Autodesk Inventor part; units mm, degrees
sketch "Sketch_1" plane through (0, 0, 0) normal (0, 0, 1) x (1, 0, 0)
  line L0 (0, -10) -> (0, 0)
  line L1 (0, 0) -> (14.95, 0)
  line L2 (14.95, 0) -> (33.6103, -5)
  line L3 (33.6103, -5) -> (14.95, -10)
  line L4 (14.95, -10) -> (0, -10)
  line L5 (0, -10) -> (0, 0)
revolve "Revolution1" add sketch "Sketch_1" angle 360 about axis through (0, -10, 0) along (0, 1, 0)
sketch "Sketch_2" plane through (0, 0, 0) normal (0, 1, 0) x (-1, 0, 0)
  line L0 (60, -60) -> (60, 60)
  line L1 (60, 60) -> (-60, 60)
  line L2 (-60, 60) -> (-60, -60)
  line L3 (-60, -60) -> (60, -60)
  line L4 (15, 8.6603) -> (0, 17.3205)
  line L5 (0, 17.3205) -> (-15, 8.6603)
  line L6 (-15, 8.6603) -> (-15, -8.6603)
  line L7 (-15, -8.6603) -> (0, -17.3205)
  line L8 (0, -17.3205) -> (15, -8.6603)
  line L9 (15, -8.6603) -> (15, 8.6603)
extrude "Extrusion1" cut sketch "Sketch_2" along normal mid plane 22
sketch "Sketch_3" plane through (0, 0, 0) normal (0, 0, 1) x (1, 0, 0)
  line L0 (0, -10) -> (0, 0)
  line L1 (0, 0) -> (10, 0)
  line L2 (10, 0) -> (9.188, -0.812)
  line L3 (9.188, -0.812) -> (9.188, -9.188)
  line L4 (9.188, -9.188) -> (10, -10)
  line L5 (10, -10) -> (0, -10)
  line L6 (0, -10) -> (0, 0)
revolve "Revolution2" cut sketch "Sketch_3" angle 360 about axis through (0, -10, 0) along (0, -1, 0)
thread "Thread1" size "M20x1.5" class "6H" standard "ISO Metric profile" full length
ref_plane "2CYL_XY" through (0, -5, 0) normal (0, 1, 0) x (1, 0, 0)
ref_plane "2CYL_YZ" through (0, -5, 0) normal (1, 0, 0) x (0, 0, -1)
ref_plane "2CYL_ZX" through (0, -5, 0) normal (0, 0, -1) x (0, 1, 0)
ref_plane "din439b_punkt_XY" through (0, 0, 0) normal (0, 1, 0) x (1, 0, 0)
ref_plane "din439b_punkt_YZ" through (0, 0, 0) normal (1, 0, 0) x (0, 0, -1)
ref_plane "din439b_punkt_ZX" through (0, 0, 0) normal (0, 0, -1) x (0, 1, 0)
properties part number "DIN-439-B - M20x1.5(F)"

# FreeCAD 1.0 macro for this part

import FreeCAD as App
import Part
import Sketcher
from FreeCAD import Vector
Q = App.Units.Quantity

doc = App.newDocument("Part")
params = doc.addObject("Spreadsheet::Sheet", "Params")
for row, (alias, value) in enumerate([
    ("sketch1_height", "10 mm"),
    ("sketch1_width", "14.95 mm"),
    ("revolution_angle", "360 deg"),
    ("sketch2_width", "120 mm"),
    ("pocket1_length", "22 mm"),
    ("sketch3_width", "10 mm"),
    ("groove_angle", "360 deg"),
], start=1):
    params.set(f"A{row}", alias)
    params.set(f"B{row}", "=" + value)
    params.setAlias(f"B{row}", alias)

body = doc.addObject("PartDesign::Body", "Body")

# Sketch on XY plane
sketch1 = body.newObject("Sketcher::SketchObject", "Sketch")
sketch1.AttachmentSupport = (doc.getObject("XY_Plane"), [""])
sketch1.MapMode = "FlatFace"
sketch1.addGeometry(Part.LineSegment(Vector(0, 0, 0), Vector(0, -10, 0)), False)
sketch1.addGeometry(Part.LineSegment(Vector(0, -10, 0), Vector(15, -10, 0)), False)
sketch1.addGeometry(Part.LineSegment(Vector(15, -10, 0), Vector(34, -5, 0)), False)
sketch1.addGeometry(Part.LineSegment(Vector(34, -5, 0), Vector(15, 0, 0)), False)
sketch1.addGeometry(Part.LineSegment(Vector(15, 0, 0), Vector(0, 0, 0)), False)
sketch1.addConstraint(Sketcher.Constraint("Coincident", 0, 2, 1, 1))
sketch1.addConstraint(Sketcher.Constraint("Coincident", 1, 2, 2, 1))
sketch1.addConstraint(Sketcher.Constraint("Coincident", 2, 2, 3, 1))
sketch1.addConstraint(Sketcher.Constraint("Coincident", 3, 2, 4, 1))
sketch1.addConstraint(Sketcher.Constraint("Coincident", 4, 2, 0, 1))
sketch1.addConstraint(Sketcher.Constraint("Vertical", 0))
sketch1.addConstraint(Sketcher.Constraint("Horizontal", 1))
sketch1.addConstraint(Sketcher.Constraint("Horizontal", 4))
sketch1.addConstraint(Sketcher.Constraint("Coincident", 4, 2, -1, 1))
sketch1.addConstraint(Sketcher.Constraint("Vertical", 1, 2, 3, 2))
sketch1.addConstraint(Sketcher.Constraint("Equal", 2, 3))
sketch1.addConstraint(Sketcher.Constraint("DistanceY", 0, 2, 0, 1, Q("10 mm")))
sketch1.addConstraint(Sketcher.Constraint("Angle", 2, Q("15 deg")))
sketch1.addConstraint(Sketcher.Constraint("DistanceX", 1, 1, 1, 2, Q("14.95 mm")))
sketch1.setExpression("Constraints[11]", "Params.sketch1_height")
sketch1.setExpression("Constraints[13]", "Params.sketch1_width")
revolution = body.newObject("PartDesign::Revolution", "Revolution")
revolution.Profile = sketch1
revolution.ReferenceAxis = (sketch1, ["V_Axis"])
revolution.setExpression("Angle", "Params.revolution_angle")

# Sketch on XZ plane
sketch2 = body.newObject("Sketcher::SketchObject", "Sketch001")
sketch2.AttachmentSupport = (doc.getObject("XZ_Plane"), [""])
sketch2.MapMode = "FlatFace"
sketch2.addGeometry(Part.LineSegment(Vector(60, -60, 0), Vector(-60, -60, 0)), False)
sketch2.addGeometry(Part.LineSegment(Vector(-60, -60, 0), Vector(-60, 60, 0)), False)
sketch2.addGeometry(Part.LineSegment(Vector(-60, 60, 0), Vector(60, 60, 0)), False)
sketch2.addGeometry(Part.LineSegment(Vector(60, 60, 0), Vector(60, -60, 0)), False)
sketch2.addGeometry(Part.LineSegment(Vector(0, 17, 0), Vector(-15, 9, 0)), False)
sketch2.addGeometry(Part.LineSegment(Vector(-15, 9, 0), Vector(-15, -9, 0)), False)
sketch2.addGeometry(Part.LineSegment(Vector(-15, -9, 0), Vector(0, -17, 0)), False)
sketch2.addGeometry(Part.LineSegment(Vector(0, -17, 0), Vector(15, -9, 0)), False)
sketch2.addGeometry(Part.LineSegment(Vector(15, -9, 0), Vector(15, 9, 0)), False)
sketch2.addGeometry(Part.LineSegment(Vector(15, 9, 0), Vector(0, 17, 0)), False)
sketch2.addConstraint(Sketcher.Constraint("Coincident", 0, 2, 1, 1))
sketch2.addConstraint(Sketcher.Constraint("Coincident", 1, 2, 2, 1))
sketch2.addConstraint(Sketcher.Constraint("Coincident", 2, 2, 3, 1))
sketch2.addConstraint(Sketcher.Constraint("Coincident", 3, 2, 0, 1))
sketch2.addConstraint(Sketcher.Constraint("Coincident", 4, 2, 5, 1))
sketch2.addConstraint(Sketcher.Constraint("Coincident", 5, 2, 6, 1))
sketch2.addConstraint(Sketcher.Constraint("Coincident", 6, 2, 7, 1))
sketch2.addConstraint(Sketcher.Constraint("Coincident", 7, 2, 8, 1))
sketch2.addConstraint(Sketcher.Constraint("Coincident", 8, 2, 9, 1))
sketch2.addConstraint(Sketcher.Constraint("Coincident", 9, 2, 4, 1))
sketch2.addConstraint(Sketcher.Constraint("Horizontal", 0))
sketch2.addConstraint(Sketcher.Constraint("Vertical", 1))
sketch2.addConstraint(Sketcher.Constraint("Horizontal", 2))
sketch2.addConstraint(Sketcher.Constraint("Vertical", 3))
sketch2.addConstraint(Sketcher.Constraint("Vertical", 5))
sketch2.addConstraint(Sketcher.Constraint("Vertical", 8))
sketch2.addConstraint(Sketcher.Constraint("Symmetric", 0, 2, 2, 2, -1, 1))
sketch2.addConstraint(Sketcher.Constraint("Symmetric", 4, 2, 7, 2, -1, 1))
sketch2.addConstraint(Sketcher.Constraint("Symmetric", 6, 2, 9, 2, -1, 1))
sketch2.addConstraint(Sketcher.Constraint("PointOnObject", 6, 2, -2))
sketch2.addConstraint(Sketcher.Constraint("Parallel", 6, 9))
sketch2.addConstraint(Sketcher.Constraint("Horizontal", 5, 2, 7, 2))
sketch2.addConstraint(Sketcher.Constraint("Equal", 2, 1))
sketch2.addConstraint(Sketcher.Constraint("DistanceX", 0, 2, 0, 1, Q("120 mm")))
sketch2.addConstraint(Sketcher.Constraint("Angle", 4, Q("-150.0002 deg")))
sketch2.addConstraint(Sketcher.Constraint("DistanceX", 4, 2, -1, 1, Q("15 mm")))
sketch2.addConstraint(Sketcher.Constraint("DistanceY", 5, 2, 5, 1, Q("17.3206 mm")))
sketch2.setExpression("Constraints[23]", "Params.sketch2_width")
pocket1 = body.newObject("PartDesign::Pocket", "Pocket")
pocket1.Profile = sketch2
pocket1.setExpression("Length", "Params.pocket1_length")
pocket1.Midplane = True

# Sketch on XY plane
sketch3 = body.newObject("Sketcher::SketchObject", "Sketch002")
sketch3.AttachmentSupport = (doc.getObject("XY_Plane"), [""])
sketch3.MapMode = "FlatFace"
sketch3.addGeometry(Part.LineSegment(Vector(0, 0, 0), Vector(0, -10, 0)), False)
sketch3.addGeometry(Part.LineSegment(Vector(0, -10, 0), Vector(10, -10, 0)), False)
sketch3.addGeometry(Part.LineSegment(Vector(10, -10, 0), Vector(9.2, -9.2, 0)), False)
sketch3.addGeometry(Part.LineSegment(Vector(9.2, -9.2, 0), Vector(9.2, -0.8, 0)), False)
sketch3.addGeometry(Part.LineSegment(Vector(9.2, -0.8, 0), Vector(10, 0, 0)), False)
sketch3.addGeometry(Part.LineSegment(Vector(10, 0, 0), Vector(0, 0, 0)), False)
sketch3.addConstraint(Sketcher.Constraint("Coincident", 0, 2, 1, 1))
sketch3.addConstraint(Sketcher.Constraint("Coincident", 1, 2, 2, 1))
sketch3.addConstraint(Sketcher.Constraint("Coincident", 2, 2, 3, 1))
sketch3.addConstraint(Sketcher.Constraint("Coincident", 3, 2, 4, 1))
sketch3.addConstraint(Sketcher.Constraint("Coincident", 4, 2, 5, 1))
sketch3.addConstraint(Sketcher.Constraint("Coincident", 5, 2, 0, 1))
sketch3.addConstraint(Sketcher.Constraint("Vertical", 0))
sketch3.addConstraint(Sketcher.Constraint("Horizontal", 1))
sketch3.addConstraint(Sketcher.Constraint("Vertical", 3))
sketch3.addConstraint(Sketcher.Constraint("Horizontal", 5))
sketch3.addConstraint(Sketcher.Constraint("Coincident", 5, 2, -1, 1))
sketch3.addConstraint(Sketcher.Constraint("Perpendicular", 2, 4))
sketch3.addConstraint(Sketcher.Constraint("Vertical", 1, 2, 4, 2))
sketch3.addConstraint(Sketcher.Constraint("Equal", 5, 0))
sketch3.addConstraint(Sketcher.Constraint("Equal", 2, 4))
sketch3.addConstraint(Sketcher.Constraint("DistanceX", 1, 1, 1, 2, Q("10 mm")))
sketch3.addConstraint(Sketcher.Constraint("DistanceY", 3, 1, 3, 2, Q("8.376 mm")))
sketch3.setExpression("Constraints[15]", "Params.sketch3_width")
groove = body.newObject("PartDesign::Groove", "Groove")
groove.Profile = sketch3
groove.ReferenceAxis = (sketch3, ["V_Axis"])
groove.setExpression("Angle", "Params.groove_angle")

doc.recompute()
